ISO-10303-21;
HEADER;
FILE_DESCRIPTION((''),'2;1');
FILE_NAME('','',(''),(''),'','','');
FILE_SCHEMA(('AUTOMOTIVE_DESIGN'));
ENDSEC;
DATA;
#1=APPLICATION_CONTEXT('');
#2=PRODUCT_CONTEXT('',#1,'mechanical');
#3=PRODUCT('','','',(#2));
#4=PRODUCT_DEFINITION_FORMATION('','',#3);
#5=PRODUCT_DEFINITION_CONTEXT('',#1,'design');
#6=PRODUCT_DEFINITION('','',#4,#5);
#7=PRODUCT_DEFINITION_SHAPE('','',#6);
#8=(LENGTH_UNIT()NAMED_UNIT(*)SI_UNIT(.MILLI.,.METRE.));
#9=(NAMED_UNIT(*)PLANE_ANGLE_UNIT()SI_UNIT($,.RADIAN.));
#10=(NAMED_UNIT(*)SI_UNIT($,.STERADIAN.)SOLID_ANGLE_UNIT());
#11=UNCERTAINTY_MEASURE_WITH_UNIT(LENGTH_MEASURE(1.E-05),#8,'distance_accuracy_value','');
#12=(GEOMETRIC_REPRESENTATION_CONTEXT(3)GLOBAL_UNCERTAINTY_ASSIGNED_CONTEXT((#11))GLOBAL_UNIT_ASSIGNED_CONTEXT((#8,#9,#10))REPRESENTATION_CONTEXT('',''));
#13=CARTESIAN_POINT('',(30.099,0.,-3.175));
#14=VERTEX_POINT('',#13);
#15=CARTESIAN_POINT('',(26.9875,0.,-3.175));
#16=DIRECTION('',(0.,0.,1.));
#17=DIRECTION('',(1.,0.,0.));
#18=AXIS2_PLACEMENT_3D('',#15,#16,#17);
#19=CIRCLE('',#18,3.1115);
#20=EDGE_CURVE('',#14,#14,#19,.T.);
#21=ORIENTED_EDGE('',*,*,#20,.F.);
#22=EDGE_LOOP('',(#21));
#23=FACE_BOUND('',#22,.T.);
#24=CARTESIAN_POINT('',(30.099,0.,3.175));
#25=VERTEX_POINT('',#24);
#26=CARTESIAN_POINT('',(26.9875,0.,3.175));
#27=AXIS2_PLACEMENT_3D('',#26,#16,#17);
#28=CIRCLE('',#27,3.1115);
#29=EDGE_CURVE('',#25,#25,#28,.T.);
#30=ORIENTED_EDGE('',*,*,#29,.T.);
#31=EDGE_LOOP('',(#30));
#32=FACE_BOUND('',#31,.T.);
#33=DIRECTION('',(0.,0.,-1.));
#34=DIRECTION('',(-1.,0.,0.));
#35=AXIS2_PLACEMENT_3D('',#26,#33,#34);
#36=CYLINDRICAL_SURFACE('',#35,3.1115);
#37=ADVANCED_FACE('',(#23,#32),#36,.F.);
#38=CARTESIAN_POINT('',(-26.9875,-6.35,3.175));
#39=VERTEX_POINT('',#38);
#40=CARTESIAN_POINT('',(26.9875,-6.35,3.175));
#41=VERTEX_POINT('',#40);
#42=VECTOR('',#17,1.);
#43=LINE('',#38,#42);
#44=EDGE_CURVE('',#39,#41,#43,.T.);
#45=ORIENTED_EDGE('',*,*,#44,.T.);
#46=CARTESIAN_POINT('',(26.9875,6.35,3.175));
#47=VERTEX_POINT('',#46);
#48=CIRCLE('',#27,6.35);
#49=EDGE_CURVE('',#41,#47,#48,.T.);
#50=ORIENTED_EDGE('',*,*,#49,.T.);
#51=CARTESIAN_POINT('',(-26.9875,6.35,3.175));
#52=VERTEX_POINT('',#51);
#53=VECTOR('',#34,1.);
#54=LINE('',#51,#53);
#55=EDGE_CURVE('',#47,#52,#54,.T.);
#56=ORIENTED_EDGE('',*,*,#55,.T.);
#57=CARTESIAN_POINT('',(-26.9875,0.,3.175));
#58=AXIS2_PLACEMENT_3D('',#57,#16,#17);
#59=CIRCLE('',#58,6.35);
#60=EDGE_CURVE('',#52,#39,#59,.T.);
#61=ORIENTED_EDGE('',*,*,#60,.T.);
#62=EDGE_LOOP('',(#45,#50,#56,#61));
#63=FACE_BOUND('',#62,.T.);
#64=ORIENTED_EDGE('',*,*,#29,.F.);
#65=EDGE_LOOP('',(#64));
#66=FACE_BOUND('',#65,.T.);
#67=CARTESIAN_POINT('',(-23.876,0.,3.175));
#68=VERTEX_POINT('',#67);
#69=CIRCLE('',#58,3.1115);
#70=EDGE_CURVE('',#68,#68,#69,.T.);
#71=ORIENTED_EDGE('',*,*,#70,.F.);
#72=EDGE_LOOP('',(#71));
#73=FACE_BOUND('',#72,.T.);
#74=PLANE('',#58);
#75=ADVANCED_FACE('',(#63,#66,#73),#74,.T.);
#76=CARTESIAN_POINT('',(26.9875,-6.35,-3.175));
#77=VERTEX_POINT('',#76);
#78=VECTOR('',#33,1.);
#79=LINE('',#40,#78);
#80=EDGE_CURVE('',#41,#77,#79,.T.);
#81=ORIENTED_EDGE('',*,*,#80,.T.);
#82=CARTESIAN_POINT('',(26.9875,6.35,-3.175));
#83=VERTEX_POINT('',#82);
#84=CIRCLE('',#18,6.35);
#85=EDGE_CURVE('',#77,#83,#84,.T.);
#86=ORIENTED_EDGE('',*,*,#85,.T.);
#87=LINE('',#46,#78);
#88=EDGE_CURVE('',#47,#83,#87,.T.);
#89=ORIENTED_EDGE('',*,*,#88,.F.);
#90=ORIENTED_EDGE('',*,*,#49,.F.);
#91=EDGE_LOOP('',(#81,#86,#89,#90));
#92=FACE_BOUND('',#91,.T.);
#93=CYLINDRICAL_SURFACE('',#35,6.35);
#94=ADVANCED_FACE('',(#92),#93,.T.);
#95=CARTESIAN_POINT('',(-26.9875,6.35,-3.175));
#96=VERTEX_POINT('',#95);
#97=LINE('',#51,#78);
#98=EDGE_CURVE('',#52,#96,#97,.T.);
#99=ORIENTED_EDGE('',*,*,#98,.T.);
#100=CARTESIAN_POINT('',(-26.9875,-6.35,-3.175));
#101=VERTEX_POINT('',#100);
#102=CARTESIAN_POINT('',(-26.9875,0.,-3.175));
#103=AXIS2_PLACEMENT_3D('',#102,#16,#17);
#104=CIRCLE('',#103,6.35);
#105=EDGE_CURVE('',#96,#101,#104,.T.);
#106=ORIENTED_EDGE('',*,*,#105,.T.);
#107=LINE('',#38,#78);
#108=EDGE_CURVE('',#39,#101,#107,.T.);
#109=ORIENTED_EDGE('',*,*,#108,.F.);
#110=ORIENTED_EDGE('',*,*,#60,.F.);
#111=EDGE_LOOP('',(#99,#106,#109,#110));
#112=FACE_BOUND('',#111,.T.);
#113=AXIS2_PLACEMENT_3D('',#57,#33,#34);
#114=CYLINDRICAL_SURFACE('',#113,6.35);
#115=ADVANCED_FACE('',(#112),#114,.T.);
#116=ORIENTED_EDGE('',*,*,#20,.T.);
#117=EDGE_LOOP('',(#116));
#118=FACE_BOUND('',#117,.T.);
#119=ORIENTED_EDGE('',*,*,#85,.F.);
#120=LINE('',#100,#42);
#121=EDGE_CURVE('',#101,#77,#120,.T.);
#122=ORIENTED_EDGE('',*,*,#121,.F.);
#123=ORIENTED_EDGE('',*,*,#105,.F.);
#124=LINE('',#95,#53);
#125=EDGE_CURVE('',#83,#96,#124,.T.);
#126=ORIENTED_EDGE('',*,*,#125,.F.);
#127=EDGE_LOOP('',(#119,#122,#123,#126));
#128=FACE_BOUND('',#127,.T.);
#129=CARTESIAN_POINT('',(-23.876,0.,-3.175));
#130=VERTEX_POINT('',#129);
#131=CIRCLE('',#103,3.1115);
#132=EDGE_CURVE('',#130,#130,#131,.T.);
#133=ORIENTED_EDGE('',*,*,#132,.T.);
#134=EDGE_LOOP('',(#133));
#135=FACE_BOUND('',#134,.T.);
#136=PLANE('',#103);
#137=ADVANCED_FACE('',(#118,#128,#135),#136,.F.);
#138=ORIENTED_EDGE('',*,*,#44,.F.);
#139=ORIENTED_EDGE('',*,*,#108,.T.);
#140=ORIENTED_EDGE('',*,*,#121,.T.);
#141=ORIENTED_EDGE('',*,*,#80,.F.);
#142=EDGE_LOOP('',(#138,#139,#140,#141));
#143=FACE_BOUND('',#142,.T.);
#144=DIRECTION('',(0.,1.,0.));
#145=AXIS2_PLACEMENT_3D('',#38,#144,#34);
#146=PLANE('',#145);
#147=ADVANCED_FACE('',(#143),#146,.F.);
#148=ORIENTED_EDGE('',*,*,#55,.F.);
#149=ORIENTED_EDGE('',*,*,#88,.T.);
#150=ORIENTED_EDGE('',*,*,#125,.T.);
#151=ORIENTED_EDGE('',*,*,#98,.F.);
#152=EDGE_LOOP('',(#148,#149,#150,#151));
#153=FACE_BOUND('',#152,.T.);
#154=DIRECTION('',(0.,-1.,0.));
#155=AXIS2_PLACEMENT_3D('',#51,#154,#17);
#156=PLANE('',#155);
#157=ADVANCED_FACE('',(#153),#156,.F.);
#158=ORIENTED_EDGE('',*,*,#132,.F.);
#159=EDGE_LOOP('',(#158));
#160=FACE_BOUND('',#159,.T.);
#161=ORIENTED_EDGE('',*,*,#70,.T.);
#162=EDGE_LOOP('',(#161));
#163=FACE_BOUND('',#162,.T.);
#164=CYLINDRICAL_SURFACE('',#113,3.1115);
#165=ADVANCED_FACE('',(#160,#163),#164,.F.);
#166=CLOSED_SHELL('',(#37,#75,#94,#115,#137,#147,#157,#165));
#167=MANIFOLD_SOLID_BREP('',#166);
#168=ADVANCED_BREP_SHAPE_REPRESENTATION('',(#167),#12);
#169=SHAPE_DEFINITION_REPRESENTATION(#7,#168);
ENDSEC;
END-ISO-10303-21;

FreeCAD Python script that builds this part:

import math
import FreeCAD as App
import Part
import Sketcher
Q = App.Units.Quantity

doc = App.newDocument("Part")
body = doc.addObject("PartDesign::Body", "Body")

sketch1 = body.newObject("Sketcher::SketchObject", "Sketch")
sketch1.AttachmentSupport = (doc.getObject("XY_Plane"), [""])
sketch1.MapMode = "FlatFace"
sketch1.addGeometry([
    Part.LineSegment(App.Vector(26.9875, 6.35, 0), App.Vector(-26.9875, 6.35, 0)),
    Part.ArcOfCircle(Part.Circle(App.Vector(-26.9875, 0, 0), App.Vector(0, 0, 1), 6.35), math.radians(90), math.radians(270)),
    Part.LineSegment(App.Vector(-26.9875, -6.35, 0), App.Vector(26.9875, -6.35, 0)),
    Part.ArcOfCircle(Part.Circle(App.Vector(26.9875, 0, 0), App.Vector(0, 0, 1), 6.35), math.radians(-90), math.radians(90)),
    Part.Circle(App.Vector(26.9875, 0, 0), App.Vector(0, 0, 1), 3.1115),
    Part.Circle(App.Vector(-26.9875, 0, 0), App.Vector(0, 0, 1), 3.1115),
], False)
sketch1.addConstraint([
    Sketcher.Constraint("Tangent", 0, 2, 1, 1),
    Sketcher.Constraint("Tangent", 1, 2, 2, 1),
    Sketcher.Constraint("Tangent", 2, 2, 3, 1),
    Sketcher.Constraint("Tangent", 3, 2, 0, 1),
    Sketcher.Constraint("Horizontal", 0),
    Sketcher.Constraint("Horizontal", 2),
    Sketcher.Constraint("Coincident", 4, 3, 3, 3),
    Sketcher.Constraint("Coincident", 5, 3, 1, 3),
    Sketcher.Constraint("Equal", 4, 5),
    Sketcher.Constraint("Symmetric", 1, 3, 3, 3, -1, 1),
    Sketcher.Constraint("Radius", 1, Q("0.25 in")),
    Sketcher.Constraint("Diameter", 4, Q("0.245 in")),
    Sketcher.Constraint("DistanceX", 0, 2, 0, 1, Q("2.125 in")),
])
pad1 = body.newObject("PartDesign::Pad", "Pad")
pad1.Profile = sketch1
pad1.Length = Q("0.25 in")
pad1.Midplane = True

doc.recompute()
